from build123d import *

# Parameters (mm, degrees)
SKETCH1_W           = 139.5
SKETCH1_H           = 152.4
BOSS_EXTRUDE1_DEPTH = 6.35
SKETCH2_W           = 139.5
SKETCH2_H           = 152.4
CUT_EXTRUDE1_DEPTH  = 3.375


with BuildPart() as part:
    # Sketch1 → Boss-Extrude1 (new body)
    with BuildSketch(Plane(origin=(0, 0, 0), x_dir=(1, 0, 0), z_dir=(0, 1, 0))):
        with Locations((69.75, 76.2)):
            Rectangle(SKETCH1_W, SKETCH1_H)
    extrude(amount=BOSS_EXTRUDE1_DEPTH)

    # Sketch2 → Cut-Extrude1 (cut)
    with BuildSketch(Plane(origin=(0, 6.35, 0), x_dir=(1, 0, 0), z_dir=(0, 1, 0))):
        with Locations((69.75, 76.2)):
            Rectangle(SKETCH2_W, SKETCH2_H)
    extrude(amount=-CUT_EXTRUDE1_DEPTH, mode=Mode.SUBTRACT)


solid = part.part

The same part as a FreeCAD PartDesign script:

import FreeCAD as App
import Part
import Sketcher
from FreeCAD import Vector
Q = App.Units.Quantity


def add_polygon(sketch, points):
    """Adds a closed chain of lines whose ends are joined by coincident constraints."""
    first, n = sketch.GeometryCount, len(points)
    for a, b in zip(points, points[1:] + points[:1]):
        sketch.addGeometry(Part.LineSegment(App.Vector(*a, 0), App.Vector(*b, 0)), False)
    for i in range(n):
        sketch.addConstraint(Sketcher.Constraint("Coincident", first + i, 2, first + (i + 1) % n, 1))

doc = App.newDocument("Part")
body = doc.addObject("PartDesign::Body", "Body")

sketch1 = body.newObject("Sketcher::SketchObject", "Sketch")
sketch1.AttachmentSupport = (doc.getObject("XZ_Plane"), [""])
sketch1.MapMode = "FlatFace"
add_polygon(sketch1, [(0, -152), (0, 0), (140, 0), (140, -152)])
sketch1.addConstraint([
    Sketcher.Constraint("Vertical", 0),
    Sketcher.Constraint("Horizontal", 1),
    Sketcher.Constraint("Vertical", 2),
    Sketcher.Constraint("Horizontal", 3),
    Sketcher.Constraint("Coincident", 0, 2, -1, 1),
    Sketcher.Constraint("DistanceY", 0, 1, 0, 2, Q("6 in")),
    Sketcher.Constraint("DistanceX", 1, 1, 1, 2, 139.5),
])
pad1 = body.newObject("PartDesign::Pad", "Pad")
pad1.Profile = sketch1
pad1.Length = Q("0.25 in")
pad1.Reversed = True

sketch2 = body.newObject("Sketcher::SketchObject", "Sketch001")
sketch2.AttachmentSupport = (doc.getObject("XZ_Plane"), [""])
sketch2.MapMode = "FlatFace"
sketch2.AttachmentOffset = App.Placement(Vector(0, 0, -0.25 * 25.4), App.Rotation())
add_polygon(sketch2, [(0, -152), (0, 0), (140, 0), (140, -152)])
sketch2.addConstraint([
    Sketcher.Constraint("Vertical", 0),
    Sketcher.Constraint("Horizontal", 1),
    Sketcher.Constraint("Vertical", 2),
    Sketcher.Constraint("Horizontal", 3),
    Sketcher.Constraint("Coincident", 0, 2, -1, 1),
    Sketcher.Constraint("DistanceY", 0, 1, 0, 2, Q("6 in")),
    Sketcher.Constraint("DistanceX", 1, 1, 1, 2, 139.5),
])
pocket1 = body.newObject("PartDesign::Pocket", "Pocket")
pocket1.Profile = sketch2
pocket1.Length = 3.375
pocket1.Reversed = True

doc.recompute()
